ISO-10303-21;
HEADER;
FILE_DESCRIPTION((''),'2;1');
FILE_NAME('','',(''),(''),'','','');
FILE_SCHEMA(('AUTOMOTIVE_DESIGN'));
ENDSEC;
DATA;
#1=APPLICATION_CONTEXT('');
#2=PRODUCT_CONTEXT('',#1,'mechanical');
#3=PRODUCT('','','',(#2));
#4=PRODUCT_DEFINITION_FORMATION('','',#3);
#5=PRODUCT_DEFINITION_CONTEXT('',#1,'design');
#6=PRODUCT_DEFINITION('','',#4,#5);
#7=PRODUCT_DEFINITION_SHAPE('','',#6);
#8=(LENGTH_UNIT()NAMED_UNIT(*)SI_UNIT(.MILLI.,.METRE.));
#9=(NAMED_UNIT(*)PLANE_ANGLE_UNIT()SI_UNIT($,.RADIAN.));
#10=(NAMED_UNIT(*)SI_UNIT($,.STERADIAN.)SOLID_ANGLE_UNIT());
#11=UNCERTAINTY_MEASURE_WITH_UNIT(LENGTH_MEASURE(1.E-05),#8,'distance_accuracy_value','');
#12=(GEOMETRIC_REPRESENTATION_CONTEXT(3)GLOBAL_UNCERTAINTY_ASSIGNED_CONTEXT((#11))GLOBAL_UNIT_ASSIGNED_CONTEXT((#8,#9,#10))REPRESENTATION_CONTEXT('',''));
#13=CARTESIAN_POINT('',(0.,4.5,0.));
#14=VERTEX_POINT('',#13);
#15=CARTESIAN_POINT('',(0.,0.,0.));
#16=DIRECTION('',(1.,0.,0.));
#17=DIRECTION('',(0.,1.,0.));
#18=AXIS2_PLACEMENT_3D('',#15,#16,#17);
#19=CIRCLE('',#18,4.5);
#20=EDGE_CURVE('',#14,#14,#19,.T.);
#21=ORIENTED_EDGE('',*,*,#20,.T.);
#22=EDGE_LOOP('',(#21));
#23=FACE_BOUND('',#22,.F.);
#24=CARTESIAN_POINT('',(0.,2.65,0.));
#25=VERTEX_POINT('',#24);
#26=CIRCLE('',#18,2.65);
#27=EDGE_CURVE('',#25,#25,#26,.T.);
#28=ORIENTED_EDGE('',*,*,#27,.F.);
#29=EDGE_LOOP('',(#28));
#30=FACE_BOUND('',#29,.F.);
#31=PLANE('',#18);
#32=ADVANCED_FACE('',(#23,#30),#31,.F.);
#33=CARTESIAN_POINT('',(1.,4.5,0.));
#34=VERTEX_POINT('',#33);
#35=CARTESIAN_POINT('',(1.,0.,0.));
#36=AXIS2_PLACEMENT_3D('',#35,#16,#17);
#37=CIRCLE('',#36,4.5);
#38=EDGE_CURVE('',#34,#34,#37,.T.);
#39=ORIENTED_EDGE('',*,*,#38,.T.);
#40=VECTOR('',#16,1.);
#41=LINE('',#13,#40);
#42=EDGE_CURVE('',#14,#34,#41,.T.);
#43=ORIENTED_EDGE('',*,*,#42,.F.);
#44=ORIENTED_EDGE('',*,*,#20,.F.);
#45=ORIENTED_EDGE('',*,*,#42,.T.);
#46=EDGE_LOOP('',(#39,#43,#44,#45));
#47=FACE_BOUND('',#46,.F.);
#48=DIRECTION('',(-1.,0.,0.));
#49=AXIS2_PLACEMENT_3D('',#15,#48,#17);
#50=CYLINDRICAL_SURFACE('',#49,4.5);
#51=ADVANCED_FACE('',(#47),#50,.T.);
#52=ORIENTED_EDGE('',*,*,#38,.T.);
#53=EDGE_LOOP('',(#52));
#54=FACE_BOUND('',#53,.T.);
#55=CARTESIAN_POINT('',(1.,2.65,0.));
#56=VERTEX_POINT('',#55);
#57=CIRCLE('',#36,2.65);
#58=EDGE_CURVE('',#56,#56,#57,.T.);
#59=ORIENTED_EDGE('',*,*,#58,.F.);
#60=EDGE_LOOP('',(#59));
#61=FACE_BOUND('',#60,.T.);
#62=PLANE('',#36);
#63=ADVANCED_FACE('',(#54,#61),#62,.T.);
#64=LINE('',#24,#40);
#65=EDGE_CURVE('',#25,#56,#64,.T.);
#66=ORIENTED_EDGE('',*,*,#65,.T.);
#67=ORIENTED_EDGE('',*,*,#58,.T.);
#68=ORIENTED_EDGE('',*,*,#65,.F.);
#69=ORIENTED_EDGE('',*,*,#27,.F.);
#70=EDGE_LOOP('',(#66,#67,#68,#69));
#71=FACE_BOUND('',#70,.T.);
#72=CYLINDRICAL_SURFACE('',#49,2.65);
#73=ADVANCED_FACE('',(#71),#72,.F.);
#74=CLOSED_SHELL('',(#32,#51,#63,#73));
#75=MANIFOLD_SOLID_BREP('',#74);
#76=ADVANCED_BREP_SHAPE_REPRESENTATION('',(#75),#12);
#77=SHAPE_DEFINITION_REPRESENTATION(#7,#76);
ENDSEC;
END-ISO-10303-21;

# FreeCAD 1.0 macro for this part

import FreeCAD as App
import Part
import Sketcher
from FreeCAD import Vector
Q = App.Units.Quantity

doc = App.newDocument("Part")
body = doc.addObject("PartDesign::Body", "Body")

# Sketch on YZ plane
sketch1 = body.newObject("Sketcher::SketchObject", "Sketch")
sketch1.AttachmentSupport = (doc.getObject("YZ_Plane"), [""])
sketch1.MapMode = "FlatFace"
sketch1.addGeometry([
    Part.Circle(Vector(0, 0, 0), Vector(0, 0, 1), 4.5),
    Part.Circle(Vector(0, 0, 0), Vector(0, 0, 1), 2.6),
], False)
sketch1.addConstraint([
    Sketcher.Constraint("Coincident", 0, 3, -1, 1),
    Sketcher.Constraint("Coincident", 1, 3, -1, 1),
    Sketcher.Constraint("Diameter", 0, Q("9 mm")),
    Sketcher.Constraint("Diameter", 1, Q("5.3 mm")),
])
pad1 = body.newObject("PartDesign::Pad", "Pad")
pad1.Profile = sketch1
pad1.Length = 1

doc.recompute()
